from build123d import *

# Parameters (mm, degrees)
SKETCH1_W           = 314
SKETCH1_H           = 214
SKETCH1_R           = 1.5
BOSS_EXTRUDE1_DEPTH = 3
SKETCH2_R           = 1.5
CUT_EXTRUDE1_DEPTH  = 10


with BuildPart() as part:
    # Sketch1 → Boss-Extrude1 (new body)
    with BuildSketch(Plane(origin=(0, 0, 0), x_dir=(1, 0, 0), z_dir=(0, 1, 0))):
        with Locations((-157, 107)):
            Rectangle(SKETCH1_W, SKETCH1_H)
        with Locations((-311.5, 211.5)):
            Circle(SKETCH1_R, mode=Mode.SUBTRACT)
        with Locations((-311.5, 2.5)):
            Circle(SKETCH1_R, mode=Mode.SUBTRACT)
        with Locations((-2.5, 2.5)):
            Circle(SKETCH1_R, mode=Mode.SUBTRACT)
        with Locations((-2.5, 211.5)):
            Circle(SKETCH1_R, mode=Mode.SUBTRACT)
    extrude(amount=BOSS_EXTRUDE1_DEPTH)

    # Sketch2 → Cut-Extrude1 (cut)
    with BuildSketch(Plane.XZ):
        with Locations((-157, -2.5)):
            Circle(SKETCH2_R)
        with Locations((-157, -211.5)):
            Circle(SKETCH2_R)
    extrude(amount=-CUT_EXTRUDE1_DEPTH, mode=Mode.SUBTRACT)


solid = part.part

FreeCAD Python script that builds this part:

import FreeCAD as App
import Part
import Sketcher
from FreeCAD import Vector

doc = App.newDocument("Part")
body = doc.addObject("PartDesign::Body", "Body")

# Sketch on XZ plane
sketch1 = doc.addObject("Sketcher::SketchObject", "Sketch")
body.addObject(sketch1)
sketch1.AttachmentSupport = (doc.XZ_Plane, [""])
sketch1.MapMode = "FlatFace"
sketch1.addGeometry([
    Part.LineSegment(Vector(-314, -214, 0), Vector(-314, 0, 0)),  # 0
    Part.LineSegment(Vector(-314, 0, 0), Vector(0, 0, 0)),  # 1
    Part.LineSegment(Vector(0, 0, 0), Vector(0, -214, 0)),  # 2
    Part.LineSegment(Vector(0, -214, 0), Vector(-314, -214, 0)),  # 3
    Part.Circle(Vector(-311.5, -2.5, 0), Vector(0, 0, 1), 1.5),  # 4
    Part.Circle(Vector(-2.5, -2.5, 0), Vector(0, 0, 1), 1.5),  # 5
    Part.Circle(Vector(-311.5, -211.5, 0), Vector(0, 0, 1), 1.5),  # 6
    Part.Circle(Vector(-2.5, -211.5, 0), Vector(0, 0, 1), 1.5),  # 7
], False)
sketch1.addConstraint([
    Sketcher.Constraint("Coincident", 0, 2, 1, 1),
    Sketcher.Constraint("Coincident", 1, 2, 2, 1),
    Sketcher.Constraint("Coincident", 2, 2, 3, 1),
    Sketcher.Constraint("Coincident", 3, 2, 0, 1),
    Sketcher.Constraint("Vertical", 0),
    Sketcher.Constraint("Horizontal", 1),
    Sketcher.Constraint("Vertical", 2),
    Sketcher.Constraint("Horizontal", 3),
    Sketcher.Constraint("Coincident", 1, 2, -1, 1),
    Sketcher.Constraint("Equal", 4, 5),
    Sketcher.Constraint("Equal", 5, 6),
    Sketcher.Constraint("Equal", 6, 7),
    Sketcher.Constraint("Horizontal", 4, 3, 5, 3),
    Sketcher.Constraint("Horizontal", 6, 3, 7, 3),
    Sketcher.Constraint("Vertical", 4, 3, 6, 3),
    Sketcher.Constraint("Vertical", 5, 3, 7, 3),
    Sketcher.Constraint("Diameter", 4, 3.0),
    Sketcher.Constraint("DistanceX", 1, 1, 1, 2, 314.0),
    Sketcher.Constraint("DistanceY", 0, 1, 0, 2, 214.0),
    Sketcher.Constraint("DistanceX", 4, 3, 5, 3, 309.0),
    Sketcher.Constraint("DistanceY", 6, 3, 4, 3, 209.0),
    Sketcher.Constraint("DistanceX", 4, 3, -1, 1, 311.5),
    Sketcher.Constraint("DistanceY", 4, 3, -1, 1, 2.5),
])
pad1 = doc.addObject("PartDesign::Pad", "Pad")
body.addObject(pad1)
pad1.Profile = sketch1
pad1.Length = 3
pad1.Reversed = True

# Sketch on XZ plane
sketch2 = doc.addObject("Sketcher::SketchObject", "Sketch001")
body.addObject(sketch2)
sketch2.AttachmentSupport = (doc.XZ_Plane, [""])
sketch2.MapMode = "FlatFace"
sketch2.addGeometry([
    Part.Circle(Vector(-157, -2.5, 0), Vector(0, 0, 1), 1.5),
    Part.Circle(Vector(-157, -211.5, 0), Vector(0, 0, 1), 1.5),
], False)
sketch2.addConstraint([
    Sketcher.Constraint("Equal", 0, 1),
    Sketcher.Constraint("Vertical", 0, 3, 1, 3),
    Sketcher.Constraint("Diameter", 0, 3.0),
    Sketcher.Constraint("DistanceX", 0, 3, -1, 1, 157.0),
    Sketcher.Constraint("DistanceY", 1, 3, 0, 3, 209.0),
    Sketcher.Constraint("DistanceY", 0, 3, -1, 1, 2.5),
])
pocket1 = doc.addObject("PartDesign::Pocket", "Pocket")
body.addObject(pocket1)
pocket1.Profile = sketch2
pocket1.Length = 10

doc.recompute()
